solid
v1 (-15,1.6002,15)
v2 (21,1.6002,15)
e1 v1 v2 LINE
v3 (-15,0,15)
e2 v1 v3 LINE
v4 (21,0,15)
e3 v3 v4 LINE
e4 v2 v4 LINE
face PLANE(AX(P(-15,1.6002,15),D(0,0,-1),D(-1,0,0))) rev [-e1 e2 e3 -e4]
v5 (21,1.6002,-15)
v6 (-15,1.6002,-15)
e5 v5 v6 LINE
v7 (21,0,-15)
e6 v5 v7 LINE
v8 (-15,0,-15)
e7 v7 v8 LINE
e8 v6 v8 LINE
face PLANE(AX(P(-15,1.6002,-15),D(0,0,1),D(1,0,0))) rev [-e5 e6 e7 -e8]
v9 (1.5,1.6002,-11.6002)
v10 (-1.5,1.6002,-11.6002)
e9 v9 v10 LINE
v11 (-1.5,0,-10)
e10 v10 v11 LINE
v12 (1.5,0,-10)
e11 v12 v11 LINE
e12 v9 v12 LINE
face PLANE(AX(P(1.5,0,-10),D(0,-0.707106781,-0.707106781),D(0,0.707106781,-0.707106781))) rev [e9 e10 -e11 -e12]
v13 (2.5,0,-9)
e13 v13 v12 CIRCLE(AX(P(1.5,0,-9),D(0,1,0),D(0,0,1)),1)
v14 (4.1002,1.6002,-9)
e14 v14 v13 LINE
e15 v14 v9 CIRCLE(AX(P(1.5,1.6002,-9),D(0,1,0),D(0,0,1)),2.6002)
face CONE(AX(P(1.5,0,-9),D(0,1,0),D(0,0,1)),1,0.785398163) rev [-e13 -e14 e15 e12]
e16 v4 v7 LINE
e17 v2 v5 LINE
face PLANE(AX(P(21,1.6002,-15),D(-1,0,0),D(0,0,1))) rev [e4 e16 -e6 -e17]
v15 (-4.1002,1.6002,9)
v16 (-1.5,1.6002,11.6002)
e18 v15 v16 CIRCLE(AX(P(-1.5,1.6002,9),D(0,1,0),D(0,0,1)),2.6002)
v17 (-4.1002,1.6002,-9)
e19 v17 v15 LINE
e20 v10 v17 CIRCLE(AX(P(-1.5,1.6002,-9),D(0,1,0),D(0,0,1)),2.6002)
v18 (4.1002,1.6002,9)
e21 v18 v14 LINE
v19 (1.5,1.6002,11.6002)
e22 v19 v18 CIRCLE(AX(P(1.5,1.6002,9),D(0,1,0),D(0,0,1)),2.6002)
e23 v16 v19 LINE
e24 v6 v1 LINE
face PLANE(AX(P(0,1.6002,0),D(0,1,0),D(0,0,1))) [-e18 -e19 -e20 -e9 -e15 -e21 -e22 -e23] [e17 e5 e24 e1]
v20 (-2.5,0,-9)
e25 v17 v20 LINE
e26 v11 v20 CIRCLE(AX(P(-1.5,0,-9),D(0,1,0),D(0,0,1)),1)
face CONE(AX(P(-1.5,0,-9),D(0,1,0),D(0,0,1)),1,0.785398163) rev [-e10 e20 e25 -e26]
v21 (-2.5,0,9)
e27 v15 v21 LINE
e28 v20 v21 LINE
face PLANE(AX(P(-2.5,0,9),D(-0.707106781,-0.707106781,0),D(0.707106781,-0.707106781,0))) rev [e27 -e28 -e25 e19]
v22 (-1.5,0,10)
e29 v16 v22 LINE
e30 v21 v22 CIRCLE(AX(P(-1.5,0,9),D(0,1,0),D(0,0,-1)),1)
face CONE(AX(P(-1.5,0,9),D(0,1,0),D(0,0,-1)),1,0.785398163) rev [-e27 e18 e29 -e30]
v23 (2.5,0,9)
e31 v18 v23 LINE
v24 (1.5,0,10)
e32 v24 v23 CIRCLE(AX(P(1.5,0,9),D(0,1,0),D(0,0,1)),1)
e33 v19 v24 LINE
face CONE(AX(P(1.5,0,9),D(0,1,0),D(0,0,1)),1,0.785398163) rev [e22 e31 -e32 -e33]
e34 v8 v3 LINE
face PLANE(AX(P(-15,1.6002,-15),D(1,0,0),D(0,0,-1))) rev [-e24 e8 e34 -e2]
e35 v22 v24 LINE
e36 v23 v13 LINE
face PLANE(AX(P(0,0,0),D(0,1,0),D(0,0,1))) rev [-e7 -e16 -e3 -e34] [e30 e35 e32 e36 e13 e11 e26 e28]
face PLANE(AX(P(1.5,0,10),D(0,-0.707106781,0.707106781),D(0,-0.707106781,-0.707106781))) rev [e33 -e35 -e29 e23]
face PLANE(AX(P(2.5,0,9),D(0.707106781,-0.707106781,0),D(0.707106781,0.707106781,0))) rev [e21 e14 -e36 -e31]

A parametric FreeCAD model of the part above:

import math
import FreeCAD as App
import Part
import Sketcher

V = App.Vector
Q = App.Units.Quantity

doc = App.newDocument("Part")
params = doc.addObject("Spreadsheet::Sheet", "Params")
for row, (alias, value) in enumerate([
    ("sketch1_width", "36 mm"),
    ("sketch1_height", "30 mm"),
    ("pad1_length", "1.6002 mm"),
    ("sketch2_radius", "1 mm"),
    ("sketch2_width", "3 mm"),
    ("sketch2_height", "18 mm"),
    ("pocket1_taper", "45 deg"),
], start=1):
    params.set(f"A{row}", alias)
    params.set(f"B{row}", "=" + value)
    params.setAlias(f"B{row}", alias)

body = doc.addObject("PartDesign::Body", "Body")

sketch1 = body.newObject("Sketcher::SketchObject", "Sketch")
sketch1.AttachmentSupport = (doc.getObject("XZ_Plane"), [""])
sketch1.MapMode = "FlatFace"
sketch1.addGeometry(Part.LineSegment(V(-15, -15, 0), V(-15, 15, 0)), False)
sketch1.addGeometry(Part.LineSegment(V(-15, 15, 0), V(21, 15, 0)), False)
sketch1.addGeometry(Part.LineSegment(V(21, 15, 0), V(21, -15, 0)), False)
sketch1.addGeometry(Part.LineSegment(V(21, -15, 0), V(-15, -15, 0)), False)
sketch1.addConstraint(Sketcher.Constraint("Coincident", 0, 2, 1, 1))
sketch1.addConstraint(Sketcher.Constraint("Coincident", 1, 2, 2, 1))
sketch1.addConstraint(Sketcher.Constraint("Coincident", 2, 2, 3, 1))
sketch1.addConstraint(Sketcher.Constraint("Coincident", 3, 2, 0, 1))
sketch1.addConstraint(Sketcher.Constraint("Vertical", 0))
sketch1.addConstraint(Sketcher.Constraint("Horizontal", 1))
sketch1.addConstraint(Sketcher.Constraint("Vertical", 2))
sketch1.addConstraint(Sketcher.Constraint("Horizontal", 3))
sketch1.addConstraint(Sketcher.Constraint("DistanceX", 1, 1, 1, 2, Q("36 mm")))
sketch1.addConstraint(Sketcher.Constraint("DistanceY", 0, 1, 0, 2, Q("30 mm")))
sketch1.addConstraint(Sketcher.Constraint("DistanceX", 0, 2, -1, 1, Q("15 mm")))
sketch1.addConstraint(Sketcher.Constraint("DistanceY", -1, 1, 0, 2, Q("15 mm")))
sketch1.setExpression("Constraints[8]", "Params.sketch1_width")
sketch1.setExpression("Constraints[9]", "Params.sketch1_height")
pad1 = body.newObject("PartDesign::Pad", "Pad")
pad1.Profile = sketch1
pad1.setExpression("Length", "Params.pad1_length")
pad1.Reversed = True

sketch2 = body.newObject("Sketcher::SketchObject", "Sketch001")
sketch2.AttachmentSupport = (doc.getObject("XZ_Plane"), [""])
sketch2.MapMode = "FlatFace"
sketch2.addGeometry(Part.ArcOfCircle(Part.Circle(V(1.5, 9, 0), V(0, 0, 1), 1), math.radians(0), math.radians(90)), False)
sketch2.addGeometry(Part.LineSegment(V(2.5, 9, 0), V(2.5, -9, 0)), False)
sketch2.addGeometry(Part.ArcOfCircle(Part.Circle(V(1.5, -9, 0), V(0, 0, 1), 1), math.radians(-90), math.radians(0)), False)
sketch2.addGeometry(Part.LineSegment(V(1.5, -10, 0), V(-1.5, -10, 0)), False)
sketch2.addGeometry(Part.ArcOfCircle(Part.Circle(V(-1.5, -9, 0), V(0, 0, 1), 1), math.radians(-180), math.radians(-90)), False)
sketch2.addGeometry(Part.LineSegment(V(-2.5, -9, 0), V(-2.5, 9, 0)), False)
sketch2.addGeometry(Part.ArcOfCircle(Part.Circle(V(-1.5, 9, 0), V(0, 0, 1), 1), math.radians(90), math.radians(180)), False)
sketch2.addGeometry(Part.LineSegment(V(-1.5, 10, 0), V(1.5, 10, 0)), False)
sketch2.addConstraint(Sketcher.Constraint("Tangent", 0, 1, 1, 1))
sketch2.addConstraint(Sketcher.Constraint("Tangent", 1, 2, 2, 2))
sketch2.addConstraint(Sketcher.Constraint("Tangent", 2, 1, 3, 1))
sketch2.addConstraint(Sketcher.Constraint("Tangent", 3, 2, 4, 2))
sketch2.addConstraint(Sketcher.Constraint("Tangent", 4, 1, 5, 1))
sketch2.addConstraint(Sketcher.Constraint("Tangent", 5, 2, 6, 2))
sketch2.addConstraint(Sketcher.Constraint("Tangent", 6, 1, 7, 1))
sketch2.addConstraint(Sketcher.Constraint("Tangent", 7, 2, 0, 2))
sketch2.addConstraint(Sketcher.Constraint("Vertical", 1))
sketch2.addConstraint(Sketcher.Constraint("Horizontal", 3))
sketch2.addConstraint(Sketcher.Constraint("Vertical", 5))
sketch2.addConstraint(Sketcher.Constraint("Horizontal", 7))
sketch2.addConstraint(Sketcher.Constraint("Equal", 0, 2))
sketch2.addConstraint(Sketcher.Constraint("Equal", 2, 4))
sketch2.addConstraint(Sketcher.Constraint("Equal", 4, 6))
sketch2.addConstraint(Sketcher.Constraint("Symmetric", 0, 3, 4, 3, -1, 1))
sketch2.addConstraint(Sketcher.Constraint("Radius", 0, Q("1 mm")))
sketch2.addConstraint(Sketcher.Constraint("DistanceX", 3, 2, 3, 1, Q("3 mm")))
sketch2.addConstraint(Sketcher.Constraint("DistanceY", 1, 2, 1, 1, Q("18 mm")))
sketch2.setExpression("Constraints[16]", "Params.sketch2_radius")
sketch2.setExpression("Constraints[17]", "Params.sketch2_width")
sketch2.setExpression("Constraints[18]", "Params.sketch2_height")
pocket1 = body.newObject("PartDesign::Pocket", "Pocket")
pocket1.Profile = sketch2
pocket1.Type = "ThroughAll"
pocket1.setExpression("TaperAngle", "Params.pocket1_taper")

doc.recompute()
